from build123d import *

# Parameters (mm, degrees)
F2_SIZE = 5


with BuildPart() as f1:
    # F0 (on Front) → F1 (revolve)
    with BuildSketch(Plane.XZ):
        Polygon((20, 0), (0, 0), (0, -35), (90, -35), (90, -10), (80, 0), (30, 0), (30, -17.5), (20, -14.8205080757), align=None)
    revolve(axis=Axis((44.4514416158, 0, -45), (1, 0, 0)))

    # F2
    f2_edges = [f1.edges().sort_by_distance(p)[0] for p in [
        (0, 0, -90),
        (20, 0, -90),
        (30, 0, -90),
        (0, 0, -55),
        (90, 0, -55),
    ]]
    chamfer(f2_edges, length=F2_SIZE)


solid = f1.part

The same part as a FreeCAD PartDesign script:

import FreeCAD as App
import Part
import Sketcher
Q = App.Units.Quantity


def edges_at(feature, points):
    """Names of the edges that pass closest to the given points."""
    edges = feature.Shape.Edges
    near = lambda p: min(range(len(edges)), key=lambda i: edges[i].distToShape(Part.Vertex(*p))[0])
    return sorted({f"Edge{near(p) + 1}" for p in points})

doc = App.newDocument("Part")
body = doc.addObject("PartDesign::Body", "Body")

# Sketch on XZ plane
sketch1 = body.newObject("Sketcher::SketchObject", "Sketch")
sketch1.AttachmentSupport = (doc.getObject("XZ_Plane"), [""])
sketch1.MapMode = "FlatFace"
sketch1.addGeometry([
    Part.LineSegment(App.Vector(20, 0, 0), App.Vector(0, 0, 0)),  # 0
    Part.LineSegment(App.Vector(0, 0, 0), App.Vector(0, -35, 0)),  # 1
    Part.LineSegment(App.Vector(0, -35, 0), App.Vector(90, -35, 0)),  # 2
    Part.LineSegment(App.Vector(90, -35, 0), App.Vector(90, -10, 0)),  # 3
    Part.LineSegment(App.Vector(90, -10, 0), App.Vector(80, 0, 0)),  # 4
    Part.LineSegment(App.Vector(80, 0, 0), App.Vector(30, 0, 0)),  # 5
    Part.LineSegment(App.Vector(30, 0, 0), App.Vector(30, -17.5, 0)),  # 6
    Part.LineSegment(App.Vector(30, -17.5, 0), App.Vector(20, -14.820508, 0)),  # 7
    Part.LineSegment(App.Vector(20, -14.820508, 0), App.Vector(20, 0, 0)),  # 8
], False)
sketch1.addGeometry(Part.LineSegment(App.Vector(0, -45, 0), App.Vector(90, -45, 0)), True)  # axis
sketch1.addConstraint([
    Sketcher.Constraint("Coincident", 0, 2, 1, 1),
    Sketcher.Constraint("Coincident", 1, 2, 2, 1),
    Sketcher.Constraint("Coincident", 2, 2, 3, 1),
    Sketcher.Constraint("Coincident", 3, 2, 4, 1),
    Sketcher.Constraint("Coincident", 4, 2, 5, 1),
    Sketcher.Constraint("Coincident", 5, 2, 6, 1),
    Sketcher.Constraint("Coincident", 6, 2, 7, 1),
    Sketcher.Constraint("Coincident", 7, 2, 8, 1),
    Sketcher.Constraint("Coincident", 8, 2, 0, 1),
    Sketcher.Constraint("Horizontal", 0),
    Sketcher.Constraint("Vertical", 1),
    Sketcher.Constraint("Horizontal", 2),
    Sketcher.Constraint("Vertical", 3),
    Sketcher.Constraint("Horizontal", 5),
    Sketcher.Constraint("Vertical", 6),
    Sketcher.Constraint("Vertical", 8),
    Sketcher.Constraint("Horizontal", 9),
    Sketcher.Constraint("Coincident", 0, 2, -1, 1),
    Sketcher.Constraint("PointOnObject", 4, 2, -1),
    Sketcher.Constraint("PointOnObject", 9, 1, -2),
    Sketcher.Constraint("Vertical", 3, 2, 9, 2),
    Sketcher.Constraint("DistanceX", 0, 2, 0, 1, Q("20 mm")),
    Sketcher.Constraint("DistanceX", 2, 1, 2, 2, Q("90 mm")),
    Sketcher.Constraint("DistanceX", 5, 2, 5, 1, Q("50 mm")),
    Sketcher.Constraint("DistanceY", 1, 2, 1, 1, Q("35 mm")),
    Sketcher.Constraint("DistanceY", 3, 1, 3, 2, Q("25 mm")),
    Sketcher.Constraint("Angle", 4, Q("135 deg")),
    Sketcher.Constraint("Angle", 7, Q("165 deg")),
    Sketcher.Constraint("DistanceY", 6, 2, 6, 1, Q("17.5 mm")),
    Sketcher.Constraint("DistanceY", 9, 1, -1, 1, Q("45 mm")),
])
revolution = body.newObject("PartDesign::Revolution", "Revolution")
revolution.Profile = sketch1
revolution.ReferenceAxis = (sketch1, ["Axis0"])
revolution.Angle = 360
doc.recompute()

chamfer = body.newObject("PartDesign::Chamfer", "Chamfer")
chamfer.Base = (revolution, edges_at(revolution, [
    (0, 0, -90),
    (20, 0, -90),
    (30, 0, -90),
    (0, 0, -55),
    (90, 0, -55),
]))
chamfer.Size = 5

doc.recompute()
